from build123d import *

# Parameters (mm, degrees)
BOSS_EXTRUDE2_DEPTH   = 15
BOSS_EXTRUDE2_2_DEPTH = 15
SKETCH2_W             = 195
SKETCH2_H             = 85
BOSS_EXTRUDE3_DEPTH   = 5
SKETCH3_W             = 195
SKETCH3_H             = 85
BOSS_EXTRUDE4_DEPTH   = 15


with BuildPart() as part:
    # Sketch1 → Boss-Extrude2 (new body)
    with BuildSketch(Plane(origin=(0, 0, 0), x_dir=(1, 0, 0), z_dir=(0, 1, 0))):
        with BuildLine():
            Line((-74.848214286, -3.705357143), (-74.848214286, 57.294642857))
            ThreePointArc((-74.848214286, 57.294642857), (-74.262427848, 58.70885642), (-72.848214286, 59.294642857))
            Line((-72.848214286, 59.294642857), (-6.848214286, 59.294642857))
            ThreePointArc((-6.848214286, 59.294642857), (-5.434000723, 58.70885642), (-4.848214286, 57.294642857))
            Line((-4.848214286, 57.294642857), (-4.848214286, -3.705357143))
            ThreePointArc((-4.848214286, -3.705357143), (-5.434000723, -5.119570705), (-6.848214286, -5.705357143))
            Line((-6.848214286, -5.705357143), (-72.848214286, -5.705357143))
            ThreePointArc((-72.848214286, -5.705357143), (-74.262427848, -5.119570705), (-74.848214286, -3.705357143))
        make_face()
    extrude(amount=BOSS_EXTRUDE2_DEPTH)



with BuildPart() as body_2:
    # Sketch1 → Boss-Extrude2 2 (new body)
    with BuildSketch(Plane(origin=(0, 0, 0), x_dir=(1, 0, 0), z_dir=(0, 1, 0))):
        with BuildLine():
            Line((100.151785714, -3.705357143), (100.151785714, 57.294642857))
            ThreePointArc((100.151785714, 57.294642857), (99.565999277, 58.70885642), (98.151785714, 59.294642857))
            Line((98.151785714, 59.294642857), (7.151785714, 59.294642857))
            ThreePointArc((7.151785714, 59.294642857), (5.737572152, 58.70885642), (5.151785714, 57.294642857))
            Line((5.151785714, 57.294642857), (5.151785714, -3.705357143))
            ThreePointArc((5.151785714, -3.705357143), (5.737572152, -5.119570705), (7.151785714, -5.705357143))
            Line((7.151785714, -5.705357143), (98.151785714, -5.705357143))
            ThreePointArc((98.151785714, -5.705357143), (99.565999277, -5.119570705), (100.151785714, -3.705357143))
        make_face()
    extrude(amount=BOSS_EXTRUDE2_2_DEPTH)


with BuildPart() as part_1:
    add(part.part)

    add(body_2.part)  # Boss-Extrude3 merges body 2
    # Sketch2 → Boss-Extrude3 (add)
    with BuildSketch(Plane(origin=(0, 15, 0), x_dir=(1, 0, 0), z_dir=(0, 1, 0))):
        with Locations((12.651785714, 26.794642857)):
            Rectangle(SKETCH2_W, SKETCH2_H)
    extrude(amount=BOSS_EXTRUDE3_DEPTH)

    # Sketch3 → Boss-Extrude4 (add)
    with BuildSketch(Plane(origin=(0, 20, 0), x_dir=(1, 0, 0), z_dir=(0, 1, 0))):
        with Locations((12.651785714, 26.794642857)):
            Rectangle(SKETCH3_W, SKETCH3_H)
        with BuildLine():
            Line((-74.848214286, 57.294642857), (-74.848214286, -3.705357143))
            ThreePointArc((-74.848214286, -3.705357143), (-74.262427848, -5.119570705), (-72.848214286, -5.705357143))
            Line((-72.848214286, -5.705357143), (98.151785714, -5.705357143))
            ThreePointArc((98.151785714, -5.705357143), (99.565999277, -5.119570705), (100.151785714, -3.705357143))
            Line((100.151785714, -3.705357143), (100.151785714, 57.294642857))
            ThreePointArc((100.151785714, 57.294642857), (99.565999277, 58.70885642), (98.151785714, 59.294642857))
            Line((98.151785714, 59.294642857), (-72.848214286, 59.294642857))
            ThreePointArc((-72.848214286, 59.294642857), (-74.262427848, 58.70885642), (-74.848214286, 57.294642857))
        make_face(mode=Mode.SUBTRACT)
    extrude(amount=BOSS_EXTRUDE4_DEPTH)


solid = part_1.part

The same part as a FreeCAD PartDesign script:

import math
import FreeCAD as App
import Part
import Sketcher


def add_polygon(sketch, points):
    """Adds a closed chain of lines whose ends are joined by coincident constraints."""
    first, n = sketch.GeometryCount, len(points)
    for a, b in zip(points, points[1:] + points[:1]):
        sketch.addGeometry(Part.LineSegment(App.Vector(*a, 0), App.Vector(*b, 0)), False)
    for i in range(n):
        sketch.addConstraint(Sketcher.Constraint("Coincident", first + i, 2, first + (i + 1) % n, 1))

doc = App.newDocument("Part")
body = doc.addObject("PartDesign::Body", "Body")

# Sketch on XZ plane
sketch1 = body.newObject("Sketcher::SketchObject", "Sketch")
sketch1.AttachmentSupport = (doc.getObject("XZ_Plane"), [""])
sketch1.MapMode = "FlatFace"
sketch1.addGeometry([
    Part.LineSegment(App.Vector(-74.8, -57.3, 0), App.Vector(-74.8, 3.7, 0)),  # 0
    Part.ArcOfCircle(Part.Circle(App.Vector(-72.8, 3.7, 0), App.Vector(0, 0, 1), 2), math.radians(90), math.radians(180)),  # 1
    Part.LineSegment(App.Vector(-72.8, 5.7, 0), App.Vector(-6.8, 5.7, 0)),  # 2
    Part.ArcOfCircle(Part.Circle(App.Vector(-6.8, 3.7, 0), App.Vector(0, 0, 1), 2), math.radians(0), math.radians(90)),  # 3
    Part.LineSegment(App.Vector(-4.8, 3.7, 0), App.Vector(-4.8, -57.3, 0)),  # 4
    Part.ArcOfCircle(Part.Circle(App.Vector(-6.8, -57.3, 0), App.Vector(0, 0, 1), 2), math.radians(-90), math.radians(0)),  # 5
    Part.LineSegment(App.Vector(-6.8, -59.3, 0), App.Vector(-72.8, -59.3, 0)),  # 6
    Part.ArcOfCircle(Part.Circle(App.Vector(-72.8, -57.3, 0), App.Vector(0, 0, 1), 2), math.radians(180), math.radians(270)),  # 7
], False)
sketch1.addConstraint([
    Sketcher.Constraint("Tangent", 0, 2, 1, 2),
    Sketcher.Constraint("Tangent", 1, 1, 2, 1),
    Sketcher.Constraint("Tangent", 2, 2, 3, 2),
    Sketcher.Constraint("Tangent", 3, 1, 4, 1),
    Sketcher.Constraint("Tangent", 4, 2, 5, 2),
    Sketcher.Constraint("Tangent", 5, 1, 6, 1),
    Sketcher.Constraint("Tangent", 6, 2, 7, 2),
    Sketcher.Constraint("Tangent", 7, 1, 0, 1),
    Sketcher.Constraint("Vertical", 0),
    Sketcher.Constraint("Horizontal", 2),
    Sketcher.Constraint("Vertical", 4),
    Sketcher.Constraint("Horizontal", 6),
    Sketcher.Constraint("Equal", 1, 3),
    Sketcher.Constraint("Equal", 3, 5),
    Sketcher.Constraint("Equal", 5, 7),
    Sketcher.Constraint("Radius", 1, 2.0),
    Sketcher.Constraint("DistanceX", 2, 1, 2, 2, 66.0),
    Sketcher.Constraint("DistanceY", 0, 1, 0, 2, 61.0),
    Sketcher.Constraint("DistanceX", 1, 3, -1, 1, 72.848214),
    Sketcher.Constraint("DistanceY", -1, 1, 1, 3, 3.705357),
])
pad1 = body.newObject("PartDesign::Pad", "Pad")
pad1.Profile = sketch1
pad1.Length = 15
pad1.Reversed = True
body2 = doc.addObject("PartDesign::Body", "Body001")

# Sketch on XZ plane
sketch2 = body2.newObject("Sketcher::SketchObject", "Sketch001")
sketch2.AttachmentSupport = (doc.getObject("XZ_Plane001"), [""])
sketch2.MapMode = "FlatFace"
sketch2.addGeometry([
    Part.LineSegment(App.Vector(100.2, 3.7, 0), App.Vector(100.2, -57.3, 0)),  # 0
    Part.ArcOfCircle(Part.Circle(App.Vector(98.2, -57.3, 0), App.Vector(0, 0, 1), 2), math.radians(-90), math.radians(0)),  # 1
    Part.LineSegment(App.Vector(98.2, -59.3, 0), App.Vector(7.2, -59.3, 0)),  # 2
    Part.ArcOfCircle(Part.Circle(App.Vector(7.2, -57.3, 0), App.Vector(0, 0, 1), 2), math.radians(180), math.radians(270)),  # 3
    Part.LineSegment(App.Vector(5.2, -57.3, 0), App.Vector(5.2, 3.7, 0)),  # 4
    Part.ArcOfCircle(Part.Circle(App.Vector(7.2, 3.7, 0), App.Vector(0, 0, 1), 2), math.radians(90), math.radians(180)),  # 5
    Part.LineSegment(App.Vector(7.2, 5.7, 0), App.Vector(98.2, 5.7, 0)),  # 6
    Part.ArcOfCircle(Part.Circle(App.Vector(98.2, 3.7, 0), App.Vector(0, 0, 1), 2), math.radians(0), math.radians(90)),  # 7
], False)
sketch2.addConstraint([
    Sketcher.Constraint("Tangent", 0, 2, 1, 2),
    Sketcher.Constraint("Tangent", 1, 1, 2, 1),
    Sketcher.Constraint("Tangent", 2, 2, 3, 2),
    Sketcher.Constraint("Tangent", 3, 1, 4, 1),
    Sketcher.Constraint("Tangent", 4, 2, 5, 2),
    Sketcher.Constraint("Tangent", 5, 1, 6, 1),
    Sketcher.Constraint("Tangent", 6, 2, 7, 2),
    Sketcher.Constraint("Tangent", 7, 1, 0, 1),
    Sketcher.Constraint("Vertical", 0),
    Sketcher.Constraint("Horizontal", 2),
    Sketcher.Constraint("Vertical", 4),
    Sketcher.Constraint("Horizontal", 6),
    Sketcher.Constraint("Equal", 1, 3),
    Sketcher.Constraint("Equal", 3, 5),
    Sketcher.Constraint("Equal", 5, 7),
    Sketcher.Constraint("Radius", 1, 2.0),
    Sketcher.Constraint("DistanceX", 2, 2, 2, 1, 91.0),
    Sketcher.Constraint("DistanceY", 0, 2, 0, 1, 61.0),
    Sketcher.Constraint("DistanceX", -1, 1, 1, 3, 98.151786),
    Sketcher.Constraint("DistanceY", 1, 3, -1, 1, 57.294643),
])
pad2 = body2.newObject("PartDesign::Pad", "Pad001")
pad2.Profile = sketch2
pad2.Length = 15
pad2.Reversed = True
body.AllowCompound = True
doc.recompute()

boolean = body.newObject("PartDesign::Boolean", "Boolean")
boolean.Type = "Fuse"
boolean.addObjects([body2])

# Sketch on XZ plane
sketch3 = body.newObject("Sketcher::SketchObject", "Sketch002")
sketch3.AttachmentSupport = (doc.getObject("XZ_Plane"), [""])
sketch3.MapMode = "FlatFace"
sketch3.AttachmentOffset = App.Placement(App.Vector(0, 0, -15), App.Rotation())
add_polygon(sketch3, [(-85, -69), (-85, 16), (110, 16), (110, -69)])  # lines 0-3
sketch3.addConstraint([
    Sketcher.Constraint("Vertical", 0),
    Sketcher.Constraint("Horizontal", 1),
    Sketcher.Constraint("Vertical", 2),
    Sketcher.Constraint("Horizontal", 3),
    Sketcher.Constraint("DistanceX", 1, 1, 1, 2, 195.0),
    Sketcher.Constraint("DistanceY", 0, 1, 0, 2, 85.0),
    Sketcher.Constraint("DistanceX", 0, 2, -1, 1, 84.848214),
    Sketcher.Constraint("DistanceY", -1, 1, 0, 2, 15.705357),
])
pad3 = body.newObject("PartDesign::Pad", "Pad002")
pad3.Profile = sketch3
pad3.Length = 5
pad3.Reversed = True

# Sketch on XZ plane
sketch4 = body.newObject("Sketcher::SketchObject", "Sketch003")
sketch4.AttachmentSupport = (doc.getObject("XZ_Plane"), [""])
sketch4.MapMode = "FlatFace"
sketch4.AttachmentOffset = App.Placement(App.Vector(0, 0, -20), App.Rotation())
add_polygon(sketch4, [(-84.8, -69.3), (-84.8, 15.7), (110.2, 15.7), (110.2, -69.3)])  # lines 0-3
sketch4.addGeometry(Part.LineSegment(App.Vector(-74.8, 3.7, 0), App.Vector(-74.8, -57.3, 0)), False)  # 4
sketch4.addGeometry(Part.ArcOfCircle(Part.Circle(App.Vector(-72.8, -57.3, 0), App.Vector(0, 0, 1), 2), math.radians(180), math.radians(270)), False)  # 5
sketch4.addGeometry(Part.LineSegment(App.Vector(-72.8, -59.3, 0), App.Vector(98.2, -59.3, 0)), False)  # 6
sketch4.addGeometry(Part.ArcOfCircle(Part.Circle(App.Vector(98.2, -57.3, 0), App.Vector(0, 0, 1), 2), math.radians(-90), math.radians(0)), False)  # 7
sketch4.addGeometry(Part.LineSegment(App.Vector(100.2, -57.3, 0), App.Vector(100.2, 3.7, 0)), False)  # 8
sketch4.addGeometry(Part.ArcOfCircle(Part.Circle(App.Vector(98.2, 3.7, 0), App.Vector(0, 0, 1), 2), math.radians(0), math.radians(90)), False)  # 9
sketch4.addGeometry(Part.LineSegment(App.Vector(98.2, 5.7, 0), App.Vector(-72.8, 5.7, 0)), False)  # 10
sketch4.addGeometry(Part.ArcOfCircle(Part.Circle(App.Vector(-72.8, 3.7, 0), App.Vector(0, 0, 1), 2), math.radians(90), math.radians(180)), False)  # 11
sketch4.addConstraint([
    Sketcher.Constraint("Tangent", 4, 2, 5, 1),
    Sketcher.Constraint("Tangent", 5, 2, 6, 1),
    Sketcher.Constraint("Tangent", 6, 2, 7, 1),
    Sketcher.Constraint("Tangent", 7, 2, 8, 1),
    Sketcher.Constraint("Tangent", 8, 2, 9, 1),
    Sketcher.Constraint("Tangent", 9, 2, 10, 1),
    Sketcher.Constraint("Tangent", 10, 2, 11, 1),
    Sketcher.Constraint("Tangent", 11, 2, 4, 1),
    Sketcher.Constraint("Vertical", 0),
    Sketcher.Constraint("Horizontal", 1),
    Sketcher.Constraint("Vertical", 2),
    Sketcher.Constraint("Horizontal", 3),
    Sketcher.Constraint("Vertical", 4),
    Sketcher.Constraint("Horizontal", 6),
    Sketcher.Constraint("Vertical", 8),
    Sketcher.Constraint("Horizontal", 10),
    Sketcher.Constraint("Equal", 5, 7),
    Sketcher.Constraint("Equal", 7, 9),
    Sketcher.Constraint("Equal", 9, 11),
    Sketcher.Constraint("Radius", 5, 2.0),
    Sketcher.Constraint("DistanceX", 1, 1, 1, 2, 195.0),
    Sketcher.Constraint("DistanceX", 6, 1, 6, 2, 171.0),
    Sketcher.Constraint("DistanceY", 0, 1, 0, 2, 85.0),
    Sketcher.Constraint("DistanceY", 4, 2, 4, 1, 61.0),
    Sketcher.Constraint("DistanceX", 0, 2, 11, 3, 12.0),
    Sketcher.Constraint("DistanceY", 11, 3, 0, 2, 12.0),
    Sketcher.Constraint("DistanceX", 5, 3, -1, 1, 72.848214),
    Sketcher.Constraint("DistanceY", 5, 3, -1, 1, 57.294643),
])
pad4 = body.newObject("PartDesign::Pad", "Pad003")
pad4.Profile = sketch4
pad4.Length = 15
pad4.Reversed = True

doc.recompute()
